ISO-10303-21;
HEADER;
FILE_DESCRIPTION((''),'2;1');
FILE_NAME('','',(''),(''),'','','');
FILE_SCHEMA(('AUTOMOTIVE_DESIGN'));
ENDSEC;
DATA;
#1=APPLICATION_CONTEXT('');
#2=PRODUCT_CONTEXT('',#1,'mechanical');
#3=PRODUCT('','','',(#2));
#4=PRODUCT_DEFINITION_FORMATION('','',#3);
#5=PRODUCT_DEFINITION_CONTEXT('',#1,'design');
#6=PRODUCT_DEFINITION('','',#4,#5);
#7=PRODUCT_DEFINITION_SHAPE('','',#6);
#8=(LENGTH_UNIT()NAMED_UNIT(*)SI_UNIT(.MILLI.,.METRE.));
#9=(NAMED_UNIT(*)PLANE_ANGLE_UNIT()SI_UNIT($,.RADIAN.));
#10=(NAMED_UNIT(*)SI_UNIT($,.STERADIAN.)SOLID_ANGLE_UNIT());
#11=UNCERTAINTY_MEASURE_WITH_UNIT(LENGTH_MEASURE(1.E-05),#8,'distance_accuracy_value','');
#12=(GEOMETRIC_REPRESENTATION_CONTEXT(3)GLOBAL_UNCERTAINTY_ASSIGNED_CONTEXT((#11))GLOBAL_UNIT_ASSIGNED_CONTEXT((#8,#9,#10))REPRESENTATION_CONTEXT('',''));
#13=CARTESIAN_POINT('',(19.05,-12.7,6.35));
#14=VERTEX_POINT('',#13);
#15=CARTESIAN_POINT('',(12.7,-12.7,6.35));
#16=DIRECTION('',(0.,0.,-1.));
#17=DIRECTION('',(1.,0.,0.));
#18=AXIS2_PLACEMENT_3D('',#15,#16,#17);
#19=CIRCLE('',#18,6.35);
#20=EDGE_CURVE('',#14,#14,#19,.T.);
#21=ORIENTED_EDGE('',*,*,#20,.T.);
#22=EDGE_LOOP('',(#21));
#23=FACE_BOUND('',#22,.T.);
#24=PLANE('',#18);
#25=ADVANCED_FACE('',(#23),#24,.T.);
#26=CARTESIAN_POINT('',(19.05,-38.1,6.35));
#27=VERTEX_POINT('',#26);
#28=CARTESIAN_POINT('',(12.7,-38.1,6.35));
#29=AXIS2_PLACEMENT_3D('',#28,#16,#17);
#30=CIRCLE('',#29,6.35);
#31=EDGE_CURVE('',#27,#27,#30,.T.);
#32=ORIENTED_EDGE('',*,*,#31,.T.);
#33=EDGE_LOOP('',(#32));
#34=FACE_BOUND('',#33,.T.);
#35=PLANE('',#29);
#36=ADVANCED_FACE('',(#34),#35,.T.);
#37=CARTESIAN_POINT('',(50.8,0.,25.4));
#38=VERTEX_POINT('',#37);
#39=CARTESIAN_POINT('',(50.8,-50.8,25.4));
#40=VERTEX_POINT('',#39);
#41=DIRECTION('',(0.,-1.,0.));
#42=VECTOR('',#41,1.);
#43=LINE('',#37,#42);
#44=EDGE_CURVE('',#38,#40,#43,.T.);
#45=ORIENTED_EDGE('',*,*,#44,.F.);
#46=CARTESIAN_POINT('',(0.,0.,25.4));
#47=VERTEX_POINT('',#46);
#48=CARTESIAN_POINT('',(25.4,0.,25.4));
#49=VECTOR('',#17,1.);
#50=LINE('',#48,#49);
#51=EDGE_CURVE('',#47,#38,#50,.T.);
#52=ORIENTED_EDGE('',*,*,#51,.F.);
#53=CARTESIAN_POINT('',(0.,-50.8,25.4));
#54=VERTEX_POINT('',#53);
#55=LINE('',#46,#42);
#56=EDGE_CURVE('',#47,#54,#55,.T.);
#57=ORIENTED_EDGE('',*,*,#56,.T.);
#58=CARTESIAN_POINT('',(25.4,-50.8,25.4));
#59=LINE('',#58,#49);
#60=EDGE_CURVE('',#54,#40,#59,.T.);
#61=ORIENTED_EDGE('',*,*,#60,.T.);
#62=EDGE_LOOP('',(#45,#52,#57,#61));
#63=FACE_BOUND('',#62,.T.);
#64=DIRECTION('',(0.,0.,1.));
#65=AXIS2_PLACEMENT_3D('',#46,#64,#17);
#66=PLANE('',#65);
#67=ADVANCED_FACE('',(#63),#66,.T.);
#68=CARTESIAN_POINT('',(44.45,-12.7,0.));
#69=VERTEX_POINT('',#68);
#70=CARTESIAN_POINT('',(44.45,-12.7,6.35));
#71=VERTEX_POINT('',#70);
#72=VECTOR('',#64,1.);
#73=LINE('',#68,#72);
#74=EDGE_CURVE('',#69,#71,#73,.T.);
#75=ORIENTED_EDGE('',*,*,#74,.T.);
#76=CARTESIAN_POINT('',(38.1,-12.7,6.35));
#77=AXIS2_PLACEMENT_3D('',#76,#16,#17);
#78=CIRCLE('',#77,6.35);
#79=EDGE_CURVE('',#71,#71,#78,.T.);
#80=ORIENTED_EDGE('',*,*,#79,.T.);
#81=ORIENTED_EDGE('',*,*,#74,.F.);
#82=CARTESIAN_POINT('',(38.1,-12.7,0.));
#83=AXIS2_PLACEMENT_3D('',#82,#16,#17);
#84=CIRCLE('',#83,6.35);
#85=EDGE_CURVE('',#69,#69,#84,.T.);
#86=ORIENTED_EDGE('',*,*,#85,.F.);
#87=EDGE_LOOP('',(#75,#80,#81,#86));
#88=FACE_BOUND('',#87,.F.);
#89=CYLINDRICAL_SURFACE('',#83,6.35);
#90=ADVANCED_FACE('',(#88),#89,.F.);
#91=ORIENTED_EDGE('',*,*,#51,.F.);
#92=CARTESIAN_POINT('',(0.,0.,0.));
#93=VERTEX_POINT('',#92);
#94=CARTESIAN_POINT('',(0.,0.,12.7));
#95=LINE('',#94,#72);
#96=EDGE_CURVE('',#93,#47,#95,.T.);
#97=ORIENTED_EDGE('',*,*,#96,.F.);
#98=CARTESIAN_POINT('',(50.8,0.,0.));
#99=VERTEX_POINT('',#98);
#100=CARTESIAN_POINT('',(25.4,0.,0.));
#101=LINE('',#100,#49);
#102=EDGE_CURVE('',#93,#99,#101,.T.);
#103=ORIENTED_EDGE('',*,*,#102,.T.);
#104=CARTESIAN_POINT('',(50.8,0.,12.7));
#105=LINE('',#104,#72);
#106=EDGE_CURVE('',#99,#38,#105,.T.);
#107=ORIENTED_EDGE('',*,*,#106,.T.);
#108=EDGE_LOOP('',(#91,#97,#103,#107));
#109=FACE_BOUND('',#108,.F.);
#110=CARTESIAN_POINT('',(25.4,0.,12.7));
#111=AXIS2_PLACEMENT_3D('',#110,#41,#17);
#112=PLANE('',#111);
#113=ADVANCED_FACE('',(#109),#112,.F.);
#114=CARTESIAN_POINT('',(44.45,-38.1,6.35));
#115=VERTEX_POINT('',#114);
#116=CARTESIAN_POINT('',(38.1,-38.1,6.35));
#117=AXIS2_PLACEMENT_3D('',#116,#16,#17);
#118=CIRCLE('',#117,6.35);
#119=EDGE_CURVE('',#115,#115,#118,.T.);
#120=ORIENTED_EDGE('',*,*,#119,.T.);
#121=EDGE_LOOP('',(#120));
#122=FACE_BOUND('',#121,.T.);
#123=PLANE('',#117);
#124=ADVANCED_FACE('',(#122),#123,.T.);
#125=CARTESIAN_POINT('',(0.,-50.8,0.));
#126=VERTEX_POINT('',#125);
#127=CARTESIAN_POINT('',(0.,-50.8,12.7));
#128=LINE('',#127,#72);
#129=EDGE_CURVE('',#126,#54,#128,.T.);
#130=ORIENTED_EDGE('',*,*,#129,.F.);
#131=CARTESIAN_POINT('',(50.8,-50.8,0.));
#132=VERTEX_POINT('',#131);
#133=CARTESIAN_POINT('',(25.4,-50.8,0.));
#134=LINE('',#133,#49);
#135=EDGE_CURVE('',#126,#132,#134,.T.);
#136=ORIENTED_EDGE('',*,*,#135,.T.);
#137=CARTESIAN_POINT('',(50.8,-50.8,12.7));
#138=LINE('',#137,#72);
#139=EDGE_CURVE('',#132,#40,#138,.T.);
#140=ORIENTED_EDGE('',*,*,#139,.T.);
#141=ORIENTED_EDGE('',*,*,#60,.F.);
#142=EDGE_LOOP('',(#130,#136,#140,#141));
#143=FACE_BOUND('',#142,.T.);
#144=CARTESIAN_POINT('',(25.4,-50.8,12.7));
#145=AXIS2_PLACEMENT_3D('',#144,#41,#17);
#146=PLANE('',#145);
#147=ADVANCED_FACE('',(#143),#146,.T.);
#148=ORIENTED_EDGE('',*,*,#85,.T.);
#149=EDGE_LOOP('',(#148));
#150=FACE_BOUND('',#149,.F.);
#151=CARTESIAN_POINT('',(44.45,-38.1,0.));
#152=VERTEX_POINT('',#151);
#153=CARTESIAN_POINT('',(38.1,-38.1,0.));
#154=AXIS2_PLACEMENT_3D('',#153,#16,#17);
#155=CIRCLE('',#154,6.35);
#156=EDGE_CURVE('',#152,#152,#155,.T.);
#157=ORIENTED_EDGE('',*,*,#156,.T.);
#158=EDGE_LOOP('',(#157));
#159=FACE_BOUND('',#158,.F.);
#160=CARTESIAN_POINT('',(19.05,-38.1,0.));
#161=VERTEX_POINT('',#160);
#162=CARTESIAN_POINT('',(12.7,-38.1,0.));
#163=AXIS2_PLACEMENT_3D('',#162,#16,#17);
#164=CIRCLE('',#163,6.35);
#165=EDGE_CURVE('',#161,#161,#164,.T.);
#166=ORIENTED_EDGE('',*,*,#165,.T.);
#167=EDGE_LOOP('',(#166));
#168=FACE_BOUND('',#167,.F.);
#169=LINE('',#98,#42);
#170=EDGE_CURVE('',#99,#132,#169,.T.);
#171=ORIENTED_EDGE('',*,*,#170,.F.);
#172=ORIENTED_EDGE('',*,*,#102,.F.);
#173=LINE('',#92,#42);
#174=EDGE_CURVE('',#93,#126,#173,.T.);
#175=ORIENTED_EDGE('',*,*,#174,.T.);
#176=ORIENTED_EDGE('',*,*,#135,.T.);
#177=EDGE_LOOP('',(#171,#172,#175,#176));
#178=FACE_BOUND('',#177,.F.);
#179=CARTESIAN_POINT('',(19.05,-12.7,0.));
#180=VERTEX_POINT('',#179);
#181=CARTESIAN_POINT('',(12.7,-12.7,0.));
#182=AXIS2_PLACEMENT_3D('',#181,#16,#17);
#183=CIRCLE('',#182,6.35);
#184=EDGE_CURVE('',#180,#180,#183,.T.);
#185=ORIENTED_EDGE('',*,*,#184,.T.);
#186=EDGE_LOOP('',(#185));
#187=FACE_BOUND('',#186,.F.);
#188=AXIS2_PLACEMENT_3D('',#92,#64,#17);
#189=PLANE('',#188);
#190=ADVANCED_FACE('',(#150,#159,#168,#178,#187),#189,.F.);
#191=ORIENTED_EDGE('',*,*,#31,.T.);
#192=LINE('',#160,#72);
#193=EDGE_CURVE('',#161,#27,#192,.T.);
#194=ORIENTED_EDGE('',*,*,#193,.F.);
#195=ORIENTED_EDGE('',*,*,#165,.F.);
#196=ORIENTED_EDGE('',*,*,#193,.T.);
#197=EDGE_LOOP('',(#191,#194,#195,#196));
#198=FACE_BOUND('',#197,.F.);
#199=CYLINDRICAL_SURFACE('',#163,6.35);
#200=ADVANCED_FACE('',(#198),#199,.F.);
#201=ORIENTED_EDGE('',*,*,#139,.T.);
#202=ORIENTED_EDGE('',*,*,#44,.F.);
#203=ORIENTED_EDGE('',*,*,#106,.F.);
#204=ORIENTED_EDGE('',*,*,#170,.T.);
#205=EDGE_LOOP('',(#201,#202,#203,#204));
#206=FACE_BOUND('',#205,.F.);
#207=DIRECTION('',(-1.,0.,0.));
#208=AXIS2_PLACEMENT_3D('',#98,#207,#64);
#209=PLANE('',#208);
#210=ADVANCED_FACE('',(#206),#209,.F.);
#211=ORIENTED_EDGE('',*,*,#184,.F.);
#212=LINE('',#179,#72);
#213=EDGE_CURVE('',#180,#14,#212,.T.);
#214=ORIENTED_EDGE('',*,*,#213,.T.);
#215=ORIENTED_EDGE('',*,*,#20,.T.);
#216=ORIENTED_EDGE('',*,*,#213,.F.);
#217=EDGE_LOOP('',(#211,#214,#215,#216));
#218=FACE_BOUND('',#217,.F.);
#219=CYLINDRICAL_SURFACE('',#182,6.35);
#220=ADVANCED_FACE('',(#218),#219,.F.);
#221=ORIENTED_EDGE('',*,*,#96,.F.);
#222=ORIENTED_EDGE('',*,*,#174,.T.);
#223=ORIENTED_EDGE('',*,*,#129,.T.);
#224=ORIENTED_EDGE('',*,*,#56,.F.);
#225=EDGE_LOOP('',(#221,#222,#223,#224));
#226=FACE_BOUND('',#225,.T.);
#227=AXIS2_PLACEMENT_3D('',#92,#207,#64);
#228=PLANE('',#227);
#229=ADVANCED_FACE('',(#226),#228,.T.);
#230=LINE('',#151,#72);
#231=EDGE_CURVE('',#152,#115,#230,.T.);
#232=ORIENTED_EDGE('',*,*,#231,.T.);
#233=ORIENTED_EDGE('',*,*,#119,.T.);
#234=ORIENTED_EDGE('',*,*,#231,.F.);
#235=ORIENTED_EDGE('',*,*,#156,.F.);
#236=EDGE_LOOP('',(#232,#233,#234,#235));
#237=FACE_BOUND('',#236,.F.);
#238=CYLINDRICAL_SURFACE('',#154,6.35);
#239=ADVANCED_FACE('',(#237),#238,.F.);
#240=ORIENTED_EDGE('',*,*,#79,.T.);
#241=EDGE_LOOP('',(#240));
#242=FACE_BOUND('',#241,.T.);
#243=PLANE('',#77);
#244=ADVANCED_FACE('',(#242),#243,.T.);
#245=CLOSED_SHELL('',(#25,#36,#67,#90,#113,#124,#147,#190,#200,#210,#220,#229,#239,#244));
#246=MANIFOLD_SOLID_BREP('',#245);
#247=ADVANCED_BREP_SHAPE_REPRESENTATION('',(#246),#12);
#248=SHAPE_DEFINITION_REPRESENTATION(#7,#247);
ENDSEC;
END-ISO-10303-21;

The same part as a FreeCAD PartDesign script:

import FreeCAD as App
import Part
import Sketcher

V = App.Vector
Q = App.Units.Quantity

doc = App.newDocument("Part")
body = doc.addObject("PartDesign::Body", "Body")

# Sketch on XZ plane
sketch1 = body.newObject("Sketcher::SketchObject", "Sketch")
sketch1.AttachmentSupport = (doc.getObject("XZ_Plane"), [""])
sketch1.MapMode = "FlatFace"
sketch1.addGeometry(Part.LineSegment(V(0, 25.4, 0), V(0, 0, 0)), False)
sketch1.addGeometry(Part.LineSegment(V(0, 0, 0), V(50.8, 0, 0)), False)
sketch1.addGeometry(Part.LineSegment(V(50.8, 0, 0), V(50.8, 25.4, 0)), False)
sketch1.addGeometry(Part.LineSegment(V(50.8, 25.4, 0), V(0, 25.4, 0)), False)
sketch1.addConstraint(Sketcher.Constraint("Coincident", 0, 2, 1, 1))
sketch1.addConstraint(Sketcher.Constraint("Coincident", 1, 2, 2, 1))
sketch1.addConstraint(Sketcher.Constraint("Coincident", 2, 2, 3, 1))
sketch1.addConstraint(Sketcher.Constraint("Coincident", 3, 2, 0, 1))
sketch1.addConstraint(Sketcher.Constraint("Vertical", 0))
sketch1.addConstraint(Sketcher.Constraint("Horizontal", 1))
sketch1.addConstraint(Sketcher.Constraint("Vertical", 2))
sketch1.addConstraint(Sketcher.Constraint("Horizontal", 3))
sketch1.addConstraint(Sketcher.Constraint("Coincident", 0, 2, -1, 1))
sketch1.addConstraint(Sketcher.Constraint("DistanceX", 1, 1, 1, 2, Q("2 in")))
sketch1.addConstraint(Sketcher.Constraint("DistanceY", 0, 2, 0, 1, Q("1 in")))
pad1 = body.newObject("PartDesign::Pad", "Pad")
pad1.Profile = sketch1
pad1.Length = Q("2 in")

# Sketch on XY plane
sketch2 = body.newObject("Sketcher::SketchObject", "Sketch001")
sketch2.AttachmentSupport = (doc.getObject("XY_Plane"), [""])
sketch2.MapMode = "FlatFace"
sketch2.addGeometry(Part.Circle(V(12.7, -38.1, 0), V(0, 0, 1), 6.35), False)
sketch2.addGeometry(Part.Circle(V(12.7, -12.7, 0), V(0, 0, 1), 6.35), False)
sketch2.addGeometry(Part.Circle(V(38.1, -12.7, 0), V(0, 0, 1), 6.35), False)
sketch2.addGeometry(Part.Circle(V(38.1, -38.1, 0), V(0, 0, 1), 6.35), False)
sketch2.addConstraint(Sketcher.Constraint("Equal", 0, 1))
sketch2.addConstraint(Sketcher.Constraint("Equal", 1, 2))
sketch2.addConstraint(Sketcher.Constraint("Equal", 2, 3))
sketch2.addConstraint(Sketcher.Constraint("Horizontal", 1, 3, 2, 3))
sketch2.addConstraint(Sketcher.Constraint("Horizontal", 0, 3, 3, 3))
sketch2.addConstraint(Sketcher.Constraint("Vertical", 0, 3, 1, 3))
sketch2.addConstraint(Sketcher.Constraint("Vertical", 2, 3, 3, 3))
sketch2.addConstraint(Sketcher.Constraint("Diameter", 0, Q("0.5 in")))
sketch2.addConstraint(Sketcher.Constraint("DistanceY", 0, 3, 1, 3, Q("1 in")))
sketch2.addConstraint(Sketcher.Constraint("DistanceX", 1, 3, 2, 3, Q("1 in")))
sketch2.addConstraint(Sketcher.Constraint("DistanceX", -1, 1, 0, 3, Q("0.5 in")))
sketch2.addConstraint(Sketcher.Constraint("DistanceY", 0, 3, -1, 1, Q("1.5 in")))
pocket1 = body.newObject("PartDesign::Pocket", "Pocket")
pocket1.Profile = sketch2
pocket1.Length = Q("0.25 in")
pocket1.Reversed = True

doc.recompute()
